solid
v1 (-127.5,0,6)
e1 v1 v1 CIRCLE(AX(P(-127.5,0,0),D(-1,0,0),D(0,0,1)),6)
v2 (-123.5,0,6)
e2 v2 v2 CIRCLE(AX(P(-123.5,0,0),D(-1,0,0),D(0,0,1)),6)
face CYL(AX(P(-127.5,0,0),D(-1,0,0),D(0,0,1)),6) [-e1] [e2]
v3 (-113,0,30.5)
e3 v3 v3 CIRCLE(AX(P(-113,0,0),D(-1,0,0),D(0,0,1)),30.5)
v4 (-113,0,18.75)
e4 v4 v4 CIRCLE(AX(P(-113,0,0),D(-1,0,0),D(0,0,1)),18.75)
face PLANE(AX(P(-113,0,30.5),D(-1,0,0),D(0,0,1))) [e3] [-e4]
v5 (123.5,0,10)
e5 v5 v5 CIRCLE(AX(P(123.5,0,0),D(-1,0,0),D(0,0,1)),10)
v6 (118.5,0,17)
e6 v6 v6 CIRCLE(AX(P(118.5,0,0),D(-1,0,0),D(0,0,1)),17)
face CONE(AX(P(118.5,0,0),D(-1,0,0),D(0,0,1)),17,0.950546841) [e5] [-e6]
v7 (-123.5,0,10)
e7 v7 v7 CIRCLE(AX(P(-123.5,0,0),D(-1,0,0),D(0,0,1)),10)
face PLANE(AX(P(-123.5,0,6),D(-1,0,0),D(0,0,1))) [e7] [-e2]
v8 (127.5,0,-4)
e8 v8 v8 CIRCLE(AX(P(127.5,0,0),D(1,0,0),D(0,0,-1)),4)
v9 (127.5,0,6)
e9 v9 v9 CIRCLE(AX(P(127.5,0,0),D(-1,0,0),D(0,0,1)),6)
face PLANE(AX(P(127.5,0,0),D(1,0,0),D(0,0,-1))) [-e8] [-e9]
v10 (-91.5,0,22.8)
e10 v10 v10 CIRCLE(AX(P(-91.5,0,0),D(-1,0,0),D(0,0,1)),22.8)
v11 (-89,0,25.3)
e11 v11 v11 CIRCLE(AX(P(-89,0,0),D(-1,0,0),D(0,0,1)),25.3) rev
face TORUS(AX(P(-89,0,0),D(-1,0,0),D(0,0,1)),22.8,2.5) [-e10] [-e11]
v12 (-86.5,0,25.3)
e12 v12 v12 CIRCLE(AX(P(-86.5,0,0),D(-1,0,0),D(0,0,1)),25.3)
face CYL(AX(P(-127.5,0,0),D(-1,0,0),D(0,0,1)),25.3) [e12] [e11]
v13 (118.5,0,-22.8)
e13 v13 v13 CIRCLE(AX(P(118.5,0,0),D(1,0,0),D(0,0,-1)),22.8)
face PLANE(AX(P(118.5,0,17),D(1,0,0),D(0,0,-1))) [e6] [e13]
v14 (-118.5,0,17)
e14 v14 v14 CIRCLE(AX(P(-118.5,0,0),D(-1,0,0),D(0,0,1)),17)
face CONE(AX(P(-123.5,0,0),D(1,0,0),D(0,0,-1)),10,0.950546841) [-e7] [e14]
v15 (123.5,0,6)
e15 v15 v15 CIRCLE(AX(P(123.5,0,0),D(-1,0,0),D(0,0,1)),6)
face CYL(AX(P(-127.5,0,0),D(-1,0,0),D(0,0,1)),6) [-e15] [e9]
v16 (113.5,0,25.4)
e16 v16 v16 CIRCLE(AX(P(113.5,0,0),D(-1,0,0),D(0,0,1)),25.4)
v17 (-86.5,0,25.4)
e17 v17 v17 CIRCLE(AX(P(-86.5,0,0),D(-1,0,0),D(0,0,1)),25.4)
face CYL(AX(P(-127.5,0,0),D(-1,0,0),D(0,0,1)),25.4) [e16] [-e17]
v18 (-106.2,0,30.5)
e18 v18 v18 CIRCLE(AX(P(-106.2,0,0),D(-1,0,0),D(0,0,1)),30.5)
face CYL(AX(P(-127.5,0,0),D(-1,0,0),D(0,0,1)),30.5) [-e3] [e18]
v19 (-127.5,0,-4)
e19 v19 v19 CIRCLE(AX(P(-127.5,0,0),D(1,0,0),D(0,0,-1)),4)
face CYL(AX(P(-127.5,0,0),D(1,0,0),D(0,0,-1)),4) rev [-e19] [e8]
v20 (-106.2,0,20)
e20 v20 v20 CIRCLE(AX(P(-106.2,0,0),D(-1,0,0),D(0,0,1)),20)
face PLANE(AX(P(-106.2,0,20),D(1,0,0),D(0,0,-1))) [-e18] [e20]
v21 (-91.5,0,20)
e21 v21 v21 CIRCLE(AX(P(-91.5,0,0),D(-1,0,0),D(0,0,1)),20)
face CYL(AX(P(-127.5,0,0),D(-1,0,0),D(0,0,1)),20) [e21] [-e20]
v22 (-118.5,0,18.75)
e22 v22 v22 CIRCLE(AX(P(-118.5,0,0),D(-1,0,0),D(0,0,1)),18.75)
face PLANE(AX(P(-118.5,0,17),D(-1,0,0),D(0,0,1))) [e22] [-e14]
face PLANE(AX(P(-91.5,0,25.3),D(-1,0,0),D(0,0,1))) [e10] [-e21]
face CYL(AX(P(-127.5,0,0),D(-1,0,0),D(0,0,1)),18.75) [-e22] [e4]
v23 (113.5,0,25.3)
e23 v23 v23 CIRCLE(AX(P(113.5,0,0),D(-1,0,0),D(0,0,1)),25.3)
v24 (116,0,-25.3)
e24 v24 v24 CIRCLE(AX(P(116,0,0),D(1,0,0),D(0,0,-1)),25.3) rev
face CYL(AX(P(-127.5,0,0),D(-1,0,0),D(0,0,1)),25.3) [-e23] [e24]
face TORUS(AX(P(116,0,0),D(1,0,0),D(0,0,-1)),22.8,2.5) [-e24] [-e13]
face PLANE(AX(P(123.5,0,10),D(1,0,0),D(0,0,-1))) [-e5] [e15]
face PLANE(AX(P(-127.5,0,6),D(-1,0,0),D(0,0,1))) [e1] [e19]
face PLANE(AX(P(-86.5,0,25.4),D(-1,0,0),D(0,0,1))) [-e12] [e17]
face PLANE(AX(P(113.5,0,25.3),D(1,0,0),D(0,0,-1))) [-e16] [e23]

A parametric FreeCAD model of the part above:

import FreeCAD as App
import Part
import Sketcher

V = App.Vector


def edges_at(feature, points):
    """Names of the edges that pass closest to the given points."""
    edges = feature.Shape.Edges
    near = lambda p: min(range(len(edges)), key=lambda i: edges[i].distToShape(Part.Vertex(*p))[0])
    return sorted({f"Edge{near(p) + 1}" for p in points})


def add_polygon(sketch, points):
    """Adds a closed chain of lines whose ends are joined by coincident constraints."""
    first, n = sketch.GeometryCount, len(points)
    for a, b in zip(points, points[1:] + points[:1]):
        sketch.addGeometry(Part.LineSegment(App.Vector(*a, 0), App.Vector(*b, 0)), False)
    for i in range(n):
        sketch.addConstraint(Sketcher.Constraint("Coincident", first + i, 2, first + (i + 1) % n, 1))

doc = App.newDocument("Part")
body = doc.addObject("PartDesign::Body", "Body")

sketch1 = body.newObject("Sketcher::SketchObject", "Sketch")
sketch1.AttachmentSupport = (doc.getObject("XZ_Plane"), [""])
sketch1.MapMode = "FlatFace"
add_polygon(sketch1, [(127.5, 0), (-127.5, 0), (-127.5, 6), (-123.5, 6), (-123.5, 10), (-118.5, 17), (-118.5, 18.75), (-113, 18.75), (-113, 30.5), (-106.2, 30.5), (-106.2, 20), (-91.5, 20), (-91.5, 25.3), (-86.5, 25.3), (-86.5, 25.4), (113.5, 25.4), (113.5, 25.3), (118.5, 25.3), (118.5, 17), (123.5, 10), (123.5, 6), (127.5, 6)])
sketch1.addConstraint(Sketcher.Constraint("Horizontal", 0))
sketch1.addConstraint(Sketcher.Constraint("Vertical", 1))
sketch1.addConstraint(Sketcher.Constraint("Horizontal", 2))
sketch1.addConstraint(Sketcher.Constraint("Vertical", 3))
sketch1.addConstraint(Sketcher.Constraint("Vertical", 5))
sketch1.addConstraint(Sketcher.Constraint("Horizontal", 6))
sketch1.addConstraint(Sketcher.Constraint("Vertical", 7))
sketch1.addConstraint(Sketcher.Constraint("Horizontal", 8))
sketch1.addConstraint(Sketcher.Constraint("Vertical", 9))
sketch1.addConstraint(Sketcher.Constraint("Horizontal", 10))
sketch1.addConstraint(Sketcher.Constraint("Vertical", 11))
sketch1.addConstraint(Sketcher.Constraint("Horizontal", 12))
sketch1.addConstraint(Sketcher.Constraint("Vertical", 13))
sketch1.addConstraint(Sketcher.Constraint("Horizontal", 14))
sketch1.addConstraint(Sketcher.Constraint("Vertical", 15))
sketch1.addConstraint(Sketcher.Constraint("Horizontal", 16))
sketch1.addConstraint(Sketcher.Constraint("Vertical", 17))
sketch1.addConstraint(Sketcher.Constraint("Vertical", 19))
sketch1.addConstraint(Sketcher.Constraint("Horizontal", 20))
sketch1.addConstraint(Sketcher.Constraint("Vertical", 21))
sketch1.addConstraint(Sketcher.Constraint("Symmetric", 0, 2, 21, 2, -1, 1))
sketch1.addConstraint(Sketcher.Constraint("Symmetric", 4, 2, 17, 2, -2))
sketch1.addConstraint(Sketcher.Constraint("Symmetric", 3, 2, 18, 2, -2))
sketch1.addConstraint(Sketcher.Constraint("Horizontal", 12, 2, 15, 2))
sketch1.addConstraint(Sketcher.Constraint("Horizontal", 2, 2, 19, 2))
sketch1.addConstraint(Sketcher.Constraint("Equal", 12, 16))
sketch1.addConstraint(Sketcher.Constraint("Equal", 20, 3))
sketch1.addConstraint(Sketcher.Constraint("DistanceX", 0, 2, 0, 1, 255.0))
sketch1.addConstraint(Sketcher.Constraint("DistanceX", 2, 1, 2, 2, 4.0))
sketch1.addConstraint(Sketcher.Constraint("DistanceX", 12, 1, 12, 2, 5.0))
sketch1.addConstraint(Sketcher.Constraint("DistanceX", 14, 1, 14, 2, 200.0))
sketch1.addConstraint(Sketcher.Constraint("DistanceY", 1, 1, 1, 2, 6.0))
sketch1.addConstraint(Sketcher.Constraint("DistanceX", 6, 1, 6, 2, 5.5))
sketch1.addConstraint(Sketcher.Constraint("DistanceX", 8, 1, 8, 2, 6.8))
sketch1.addConstraint(Sketcher.Constraint("DistanceX", 10, 1, 10, 2, 14.7))
sketch1.addConstraint(Sketcher.Constraint("DistanceY", 9, 2, 9, 1, 10.5))
sketch1.addConstraint(Sketcher.Constraint("DistanceY", 11, 1, 11, 2, 5.3))
sketch1.addConstraint(Sketcher.Constraint("DistanceY", 13, 1, 13, 2, 0.1))
sketch1.addConstraint(Sketcher.Constraint("DistanceY", 17, 2, 17, 1, 8.3))
sketch1.addConstraint(Sketcher.Constraint("DistanceY", -1, 1, 4, 2, 17.0))
sketch1.addConstraint(Sketcher.Constraint("DistanceY", 5, 1, 5, 2, 1.75))
revolution = body.newObject("PartDesign::Revolution", "Revolution")
revolution.Profile = sketch1
revolution.ReferenceAxis = (sketch1, ["H_Axis"])
revolution.Angle = 360

sketch2 = body.newObject("Sketcher::SketchObject", "Sketch001")
sketch2.AttachmentSupport = (doc.getObject("YZ_Plane"), [""])
sketch2.MapMode = "FlatFace"
sketch2.addGeometry(Part.Circle(V(0, 0, 0), V(0, 0, 1), 4), False)
sketch2.addConstraint(Sketcher.Constraint("Coincident", 0, 3, -1, 1))
sketch2.addConstraint(Sketcher.Constraint("Diameter", 0, 8.0))
pocket1 = body.newObject("PartDesign::Pocket", "Pocket")
pocket1.Profile = sketch2
pocket1.Type = "ThroughAll"
pocket1.Midplane = True
doc.recompute()

fillet = body.newObject("PartDesign::Fillet", "Fillet")
fillet.Base = (pocket1, edges_at(pocket1, [(-91.5, 0, -25.3), (118.5, 0, -25.3)]))
fillet.Radius = 2.5

doc.recompute()
